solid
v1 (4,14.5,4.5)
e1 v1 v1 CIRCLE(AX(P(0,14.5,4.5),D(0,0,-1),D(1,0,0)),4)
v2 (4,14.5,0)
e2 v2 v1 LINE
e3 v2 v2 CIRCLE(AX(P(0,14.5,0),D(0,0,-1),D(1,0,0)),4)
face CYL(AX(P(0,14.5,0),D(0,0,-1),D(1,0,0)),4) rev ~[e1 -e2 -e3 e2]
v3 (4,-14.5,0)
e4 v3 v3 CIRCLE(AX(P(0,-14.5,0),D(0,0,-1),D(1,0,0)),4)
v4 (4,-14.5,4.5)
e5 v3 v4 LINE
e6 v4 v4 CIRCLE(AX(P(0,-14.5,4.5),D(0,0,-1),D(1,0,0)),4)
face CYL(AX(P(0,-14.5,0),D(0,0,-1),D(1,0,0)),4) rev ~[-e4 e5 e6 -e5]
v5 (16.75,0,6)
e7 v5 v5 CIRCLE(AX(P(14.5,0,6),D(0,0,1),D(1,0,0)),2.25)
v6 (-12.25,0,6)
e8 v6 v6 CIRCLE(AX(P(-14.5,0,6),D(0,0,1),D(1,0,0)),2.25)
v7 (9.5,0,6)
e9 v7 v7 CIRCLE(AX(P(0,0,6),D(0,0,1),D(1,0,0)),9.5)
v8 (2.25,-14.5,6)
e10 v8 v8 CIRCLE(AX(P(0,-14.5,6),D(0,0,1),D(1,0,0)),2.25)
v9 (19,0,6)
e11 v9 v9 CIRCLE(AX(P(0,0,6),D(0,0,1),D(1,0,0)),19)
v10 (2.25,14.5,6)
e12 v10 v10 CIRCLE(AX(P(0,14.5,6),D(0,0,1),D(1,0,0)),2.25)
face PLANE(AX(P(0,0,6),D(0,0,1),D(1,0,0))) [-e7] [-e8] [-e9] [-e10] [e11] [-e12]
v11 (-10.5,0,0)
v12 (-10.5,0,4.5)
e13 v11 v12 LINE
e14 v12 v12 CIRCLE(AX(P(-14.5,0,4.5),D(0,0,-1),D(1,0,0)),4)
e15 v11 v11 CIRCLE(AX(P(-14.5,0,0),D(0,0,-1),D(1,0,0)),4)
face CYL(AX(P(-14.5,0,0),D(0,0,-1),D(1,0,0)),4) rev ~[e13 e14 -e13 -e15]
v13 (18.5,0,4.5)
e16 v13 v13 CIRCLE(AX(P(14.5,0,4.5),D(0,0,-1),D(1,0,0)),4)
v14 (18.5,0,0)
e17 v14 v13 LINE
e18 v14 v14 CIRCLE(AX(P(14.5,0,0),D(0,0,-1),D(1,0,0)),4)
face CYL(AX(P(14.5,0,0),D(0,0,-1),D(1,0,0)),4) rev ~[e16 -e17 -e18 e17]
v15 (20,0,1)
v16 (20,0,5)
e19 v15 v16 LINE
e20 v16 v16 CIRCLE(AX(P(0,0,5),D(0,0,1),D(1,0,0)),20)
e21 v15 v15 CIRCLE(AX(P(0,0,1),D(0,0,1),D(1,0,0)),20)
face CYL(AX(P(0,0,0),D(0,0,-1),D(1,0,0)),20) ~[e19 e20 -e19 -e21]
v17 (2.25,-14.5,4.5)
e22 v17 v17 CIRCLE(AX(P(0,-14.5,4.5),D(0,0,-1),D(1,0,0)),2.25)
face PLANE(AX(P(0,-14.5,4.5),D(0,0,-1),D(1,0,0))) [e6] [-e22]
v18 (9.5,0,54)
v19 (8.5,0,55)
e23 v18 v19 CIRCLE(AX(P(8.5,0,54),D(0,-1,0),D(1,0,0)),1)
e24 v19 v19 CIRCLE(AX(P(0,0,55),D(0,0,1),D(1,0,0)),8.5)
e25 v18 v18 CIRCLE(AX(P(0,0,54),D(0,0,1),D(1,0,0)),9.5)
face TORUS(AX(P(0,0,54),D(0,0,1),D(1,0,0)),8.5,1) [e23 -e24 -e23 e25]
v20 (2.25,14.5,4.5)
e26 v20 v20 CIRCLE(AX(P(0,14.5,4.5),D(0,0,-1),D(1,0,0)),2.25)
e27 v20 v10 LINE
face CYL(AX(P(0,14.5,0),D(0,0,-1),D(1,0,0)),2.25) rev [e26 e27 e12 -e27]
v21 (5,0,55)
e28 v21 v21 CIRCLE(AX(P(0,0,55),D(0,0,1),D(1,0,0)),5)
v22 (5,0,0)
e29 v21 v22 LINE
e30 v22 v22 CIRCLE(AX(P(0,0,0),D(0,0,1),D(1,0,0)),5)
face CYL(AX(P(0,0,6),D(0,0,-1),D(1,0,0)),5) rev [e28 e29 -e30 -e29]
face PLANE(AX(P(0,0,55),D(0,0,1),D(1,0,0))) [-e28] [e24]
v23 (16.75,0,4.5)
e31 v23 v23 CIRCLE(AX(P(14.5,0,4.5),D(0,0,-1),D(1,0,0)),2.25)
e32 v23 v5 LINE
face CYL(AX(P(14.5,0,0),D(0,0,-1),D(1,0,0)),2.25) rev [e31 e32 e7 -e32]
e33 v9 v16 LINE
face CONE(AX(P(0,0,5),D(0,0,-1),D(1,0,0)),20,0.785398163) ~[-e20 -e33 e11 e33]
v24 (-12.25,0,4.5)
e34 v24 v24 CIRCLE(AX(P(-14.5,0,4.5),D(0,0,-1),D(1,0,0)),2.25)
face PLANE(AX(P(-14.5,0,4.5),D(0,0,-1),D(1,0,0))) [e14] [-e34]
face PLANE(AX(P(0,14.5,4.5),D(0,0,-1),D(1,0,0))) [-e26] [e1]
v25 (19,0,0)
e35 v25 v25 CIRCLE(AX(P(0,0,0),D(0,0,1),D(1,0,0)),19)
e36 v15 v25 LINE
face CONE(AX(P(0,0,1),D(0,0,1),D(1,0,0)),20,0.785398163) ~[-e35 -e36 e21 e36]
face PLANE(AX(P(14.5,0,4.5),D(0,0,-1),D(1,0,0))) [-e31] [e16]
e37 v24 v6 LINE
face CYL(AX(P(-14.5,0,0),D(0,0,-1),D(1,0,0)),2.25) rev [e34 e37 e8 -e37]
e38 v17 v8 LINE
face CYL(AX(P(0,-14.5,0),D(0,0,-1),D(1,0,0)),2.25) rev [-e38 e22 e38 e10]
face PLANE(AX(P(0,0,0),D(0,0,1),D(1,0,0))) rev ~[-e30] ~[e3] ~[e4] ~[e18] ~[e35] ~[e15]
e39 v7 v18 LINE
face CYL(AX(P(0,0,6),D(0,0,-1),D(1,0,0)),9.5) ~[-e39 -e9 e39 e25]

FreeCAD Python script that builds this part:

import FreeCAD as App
import Part
import Sketcher
from FreeCAD import Vector
Q = App.Units.Quantity


def edges_at(feature, points):
    """Names of the edges that pass closest to the given points."""
    edges = feature.Shape.Edges
    near = lambda p: min(range(len(edges)), key=lambda i: edges[i].distToShape(Part.Vertex(*p))[0])
    return sorted({f"Edge{near(p) + 1}" for p in points})

doc = App.newDocument("Part")
body = doc.addObject("PartDesign::Body", "Body")

sketch1 = body.newObject("Sketcher::SketchObject", "Sketch")
sketch1.AttachmentSupport = (doc.getObject("XY_Plane"), [""])
sketch1.MapMode = "FlatFace"
sketch1.addGeometry(Part.Circle(Vector(0, 0, 0), Vector(0, 0, 1), 20), False)
sketch1.addGeometry(Part.Circle(Vector(0, -14.5, 0), Vector(0, 0, 1), 2.2), False)
sketch1.addGeometry(Part.Circle(Vector(-14.5, 0, 0), Vector(0, 0, 1), 2.2), False)
sketch1.addGeometry(Part.Circle(Vector(0, 0, 0), Vector(0, 0, 1), 5), False)
sketch1.addGeometry(Part.Circle(Vector(14.5, 0, 0), Vector(0, 0, 1), 2.2), False)
sketch1.addGeometry(Part.Circle(Vector(0, 14.5, 0), Vector(0, 0, 1), 2.2), False)
sketch1.addConstraint(Sketcher.Constraint("Coincident", 0, 3, -1, 1))
sketch1.addConstraint(Sketcher.Constraint("Coincident", 3, 3, -1, 1))
sketch1.addConstraint(Sketcher.Constraint("Equal", 1, 2))
sketch1.addConstraint(Sketcher.Constraint("Equal", 2, 4))
sketch1.addConstraint(Sketcher.Constraint("Equal", 4, 5))
sketch1.addConstraint(Sketcher.Constraint("Symmetric", 2, 3, 4, 3, -1, 1))
sketch1.addConstraint(Sketcher.Constraint("Symmetric", 1, 3, 5, 3, -1, 1))
sketch1.addConstraint(Sketcher.Constraint("PointOnObject", 1, 3, -2))
sketch1.addConstraint(Sketcher.Constraint("PointOnObject", 2, 3, -1))
sketch1.addConstraint(Sketcher.Constraint("Diameter", 0, Q("40 mm")))
sketch1.addConstraint(Sketcher.Constraint("Diameter", 3, Q("10 mm")))
sketch1.addConstraint(Sketcher.Constraint("Diameter", 1, Q("4.5 mm")))
sketch1.addConstraint(Sketcher.Constraint("DistanceX", 2, 3, 4, 3, Q("29 mm")))
sketch1.addConstraint(Sketcher.Constraint("DistanceY", 1, 3, 5, 3, Q("29 mm")))
pad1 = body.newObject("PartDesign::Pad", "Pad")
pad1.Profile = sketch1
pad1.Length = 6

sketch2 = body.newObject("Sketcher::SketchObject", "Sketch001")
sketch2.AttachmentSupport = (doc.getObject("XY_Plane"), [""])
sketch2.MapMode = "FlatFace"
sketch2.AttachmentOffset = App.Placement(Vector(0, 0, 6), App.Rotation())
sketch2.addGeometry(Part.Circle(Vector(0, 0, 0), Vector(0, 0, 1), 10), False)
sketch2.addGeometry(Part.Circle(Vector(0, 0, 0), Vector(0, 0, 1), 5), False)
sketch2.addConstraint(Sketcher.Constraint("Coincident", 0, 3, -1, 1))
sketch2.addConstraint(Sketcher.Constraint("Coincident", 1, 3, -1, 1))
sketch2.addConstraint(Sketcher.Constraint("Diameter", 0, Q("19 mm")))
sketch2.addConstraint(Sketcher.Constraint("Diameter", 1, Q("10 mm")))
pad2 = body.newObject("PartDesign::Pad", "Pad001")
pad2.Profile = sketch2
pad2.Length = 49

sketch3 = body.newObject("Sketcher::SketchObject", "Sketch002")
sketch3.AttachmentSupport = (doc.getObject("XY_Plane"), [""])
sketch3.MapMode = "FlatFace"
sketch3.addGeometry(Part.Circle(Vector(0, -14.5, 0), Vector(0, 0, 1), 4), False)
sketch3.addGeometry(Part.Circle(Vector(14.5, 0, 0), Vector(0, 0, 1), 4), False)
sketch3.addGeometry(Part.Circle(Vector(0, 14.5, 0), Vector(0, 0, 1), 4), False)
sketch3.addGeometry(Part.Circle(Vector(-14.5, 0, 0), Vector(0, 0, 1), 4), False)
sketch3.addConstraint(Sketcher.Constraint("Equal", 0, 1))
sketch3.addConstraint(Sketcher.Constraint("Equal", 1, 2))
sketch3.addConstraint(Sketcher.Constraint("Equal", 2, 3))
sketch3.addConstraint(Sketcher.Constraint("Symmetric", 0, 3, 2, 3, -1, 1))
sketch3.addConstraint(Sketcher.Constraint("Symmetric", 1, 3, 3, 3, -1, 1))
sketch3.addConstraint(Sketcher.Constraint("PointOnObject", 0, 3, -2))
sketch3.addConstraint(Sketcher.Constraint("PointOnObject", 1, 3, -1))
sketch3.addConstraint(Sketcher.Constraint("Diameter", 0, Q("8 mm")))
sketch3.addConstraint(Sketcher.Constraint("DistanceY", 0, 3, 2, 3, Q("29 mm")))
sketch3.addConstraint(Sketcher.Constraint("DistanceX", 3, 3, 1, 3, Q("29 mm")))
pocket1 = body.newObject("PartDesign::Pocket", "Pocket")
pocket1.Profile = sketch3
pocket1.Length = 4.5
pocket1.Reversed = True
doc.recompute()

chamfer = body.newObject("PartDesign::Chamfer", "Chamfer")
chamfer.Base = (pocket1, edges_at(pocket1, [(-20, 0, 0), (-20, 0, 6)]))
chamfer.Size = 1
doc.recompute()

fillet = body.newObject("PartDesign::Fillet", "Fillet")
fillet.Base = (chamfer, edges_at(chamfer, [(-9.5, 0, 55)]))
fillet.Radius = 1

doc.recompute()
